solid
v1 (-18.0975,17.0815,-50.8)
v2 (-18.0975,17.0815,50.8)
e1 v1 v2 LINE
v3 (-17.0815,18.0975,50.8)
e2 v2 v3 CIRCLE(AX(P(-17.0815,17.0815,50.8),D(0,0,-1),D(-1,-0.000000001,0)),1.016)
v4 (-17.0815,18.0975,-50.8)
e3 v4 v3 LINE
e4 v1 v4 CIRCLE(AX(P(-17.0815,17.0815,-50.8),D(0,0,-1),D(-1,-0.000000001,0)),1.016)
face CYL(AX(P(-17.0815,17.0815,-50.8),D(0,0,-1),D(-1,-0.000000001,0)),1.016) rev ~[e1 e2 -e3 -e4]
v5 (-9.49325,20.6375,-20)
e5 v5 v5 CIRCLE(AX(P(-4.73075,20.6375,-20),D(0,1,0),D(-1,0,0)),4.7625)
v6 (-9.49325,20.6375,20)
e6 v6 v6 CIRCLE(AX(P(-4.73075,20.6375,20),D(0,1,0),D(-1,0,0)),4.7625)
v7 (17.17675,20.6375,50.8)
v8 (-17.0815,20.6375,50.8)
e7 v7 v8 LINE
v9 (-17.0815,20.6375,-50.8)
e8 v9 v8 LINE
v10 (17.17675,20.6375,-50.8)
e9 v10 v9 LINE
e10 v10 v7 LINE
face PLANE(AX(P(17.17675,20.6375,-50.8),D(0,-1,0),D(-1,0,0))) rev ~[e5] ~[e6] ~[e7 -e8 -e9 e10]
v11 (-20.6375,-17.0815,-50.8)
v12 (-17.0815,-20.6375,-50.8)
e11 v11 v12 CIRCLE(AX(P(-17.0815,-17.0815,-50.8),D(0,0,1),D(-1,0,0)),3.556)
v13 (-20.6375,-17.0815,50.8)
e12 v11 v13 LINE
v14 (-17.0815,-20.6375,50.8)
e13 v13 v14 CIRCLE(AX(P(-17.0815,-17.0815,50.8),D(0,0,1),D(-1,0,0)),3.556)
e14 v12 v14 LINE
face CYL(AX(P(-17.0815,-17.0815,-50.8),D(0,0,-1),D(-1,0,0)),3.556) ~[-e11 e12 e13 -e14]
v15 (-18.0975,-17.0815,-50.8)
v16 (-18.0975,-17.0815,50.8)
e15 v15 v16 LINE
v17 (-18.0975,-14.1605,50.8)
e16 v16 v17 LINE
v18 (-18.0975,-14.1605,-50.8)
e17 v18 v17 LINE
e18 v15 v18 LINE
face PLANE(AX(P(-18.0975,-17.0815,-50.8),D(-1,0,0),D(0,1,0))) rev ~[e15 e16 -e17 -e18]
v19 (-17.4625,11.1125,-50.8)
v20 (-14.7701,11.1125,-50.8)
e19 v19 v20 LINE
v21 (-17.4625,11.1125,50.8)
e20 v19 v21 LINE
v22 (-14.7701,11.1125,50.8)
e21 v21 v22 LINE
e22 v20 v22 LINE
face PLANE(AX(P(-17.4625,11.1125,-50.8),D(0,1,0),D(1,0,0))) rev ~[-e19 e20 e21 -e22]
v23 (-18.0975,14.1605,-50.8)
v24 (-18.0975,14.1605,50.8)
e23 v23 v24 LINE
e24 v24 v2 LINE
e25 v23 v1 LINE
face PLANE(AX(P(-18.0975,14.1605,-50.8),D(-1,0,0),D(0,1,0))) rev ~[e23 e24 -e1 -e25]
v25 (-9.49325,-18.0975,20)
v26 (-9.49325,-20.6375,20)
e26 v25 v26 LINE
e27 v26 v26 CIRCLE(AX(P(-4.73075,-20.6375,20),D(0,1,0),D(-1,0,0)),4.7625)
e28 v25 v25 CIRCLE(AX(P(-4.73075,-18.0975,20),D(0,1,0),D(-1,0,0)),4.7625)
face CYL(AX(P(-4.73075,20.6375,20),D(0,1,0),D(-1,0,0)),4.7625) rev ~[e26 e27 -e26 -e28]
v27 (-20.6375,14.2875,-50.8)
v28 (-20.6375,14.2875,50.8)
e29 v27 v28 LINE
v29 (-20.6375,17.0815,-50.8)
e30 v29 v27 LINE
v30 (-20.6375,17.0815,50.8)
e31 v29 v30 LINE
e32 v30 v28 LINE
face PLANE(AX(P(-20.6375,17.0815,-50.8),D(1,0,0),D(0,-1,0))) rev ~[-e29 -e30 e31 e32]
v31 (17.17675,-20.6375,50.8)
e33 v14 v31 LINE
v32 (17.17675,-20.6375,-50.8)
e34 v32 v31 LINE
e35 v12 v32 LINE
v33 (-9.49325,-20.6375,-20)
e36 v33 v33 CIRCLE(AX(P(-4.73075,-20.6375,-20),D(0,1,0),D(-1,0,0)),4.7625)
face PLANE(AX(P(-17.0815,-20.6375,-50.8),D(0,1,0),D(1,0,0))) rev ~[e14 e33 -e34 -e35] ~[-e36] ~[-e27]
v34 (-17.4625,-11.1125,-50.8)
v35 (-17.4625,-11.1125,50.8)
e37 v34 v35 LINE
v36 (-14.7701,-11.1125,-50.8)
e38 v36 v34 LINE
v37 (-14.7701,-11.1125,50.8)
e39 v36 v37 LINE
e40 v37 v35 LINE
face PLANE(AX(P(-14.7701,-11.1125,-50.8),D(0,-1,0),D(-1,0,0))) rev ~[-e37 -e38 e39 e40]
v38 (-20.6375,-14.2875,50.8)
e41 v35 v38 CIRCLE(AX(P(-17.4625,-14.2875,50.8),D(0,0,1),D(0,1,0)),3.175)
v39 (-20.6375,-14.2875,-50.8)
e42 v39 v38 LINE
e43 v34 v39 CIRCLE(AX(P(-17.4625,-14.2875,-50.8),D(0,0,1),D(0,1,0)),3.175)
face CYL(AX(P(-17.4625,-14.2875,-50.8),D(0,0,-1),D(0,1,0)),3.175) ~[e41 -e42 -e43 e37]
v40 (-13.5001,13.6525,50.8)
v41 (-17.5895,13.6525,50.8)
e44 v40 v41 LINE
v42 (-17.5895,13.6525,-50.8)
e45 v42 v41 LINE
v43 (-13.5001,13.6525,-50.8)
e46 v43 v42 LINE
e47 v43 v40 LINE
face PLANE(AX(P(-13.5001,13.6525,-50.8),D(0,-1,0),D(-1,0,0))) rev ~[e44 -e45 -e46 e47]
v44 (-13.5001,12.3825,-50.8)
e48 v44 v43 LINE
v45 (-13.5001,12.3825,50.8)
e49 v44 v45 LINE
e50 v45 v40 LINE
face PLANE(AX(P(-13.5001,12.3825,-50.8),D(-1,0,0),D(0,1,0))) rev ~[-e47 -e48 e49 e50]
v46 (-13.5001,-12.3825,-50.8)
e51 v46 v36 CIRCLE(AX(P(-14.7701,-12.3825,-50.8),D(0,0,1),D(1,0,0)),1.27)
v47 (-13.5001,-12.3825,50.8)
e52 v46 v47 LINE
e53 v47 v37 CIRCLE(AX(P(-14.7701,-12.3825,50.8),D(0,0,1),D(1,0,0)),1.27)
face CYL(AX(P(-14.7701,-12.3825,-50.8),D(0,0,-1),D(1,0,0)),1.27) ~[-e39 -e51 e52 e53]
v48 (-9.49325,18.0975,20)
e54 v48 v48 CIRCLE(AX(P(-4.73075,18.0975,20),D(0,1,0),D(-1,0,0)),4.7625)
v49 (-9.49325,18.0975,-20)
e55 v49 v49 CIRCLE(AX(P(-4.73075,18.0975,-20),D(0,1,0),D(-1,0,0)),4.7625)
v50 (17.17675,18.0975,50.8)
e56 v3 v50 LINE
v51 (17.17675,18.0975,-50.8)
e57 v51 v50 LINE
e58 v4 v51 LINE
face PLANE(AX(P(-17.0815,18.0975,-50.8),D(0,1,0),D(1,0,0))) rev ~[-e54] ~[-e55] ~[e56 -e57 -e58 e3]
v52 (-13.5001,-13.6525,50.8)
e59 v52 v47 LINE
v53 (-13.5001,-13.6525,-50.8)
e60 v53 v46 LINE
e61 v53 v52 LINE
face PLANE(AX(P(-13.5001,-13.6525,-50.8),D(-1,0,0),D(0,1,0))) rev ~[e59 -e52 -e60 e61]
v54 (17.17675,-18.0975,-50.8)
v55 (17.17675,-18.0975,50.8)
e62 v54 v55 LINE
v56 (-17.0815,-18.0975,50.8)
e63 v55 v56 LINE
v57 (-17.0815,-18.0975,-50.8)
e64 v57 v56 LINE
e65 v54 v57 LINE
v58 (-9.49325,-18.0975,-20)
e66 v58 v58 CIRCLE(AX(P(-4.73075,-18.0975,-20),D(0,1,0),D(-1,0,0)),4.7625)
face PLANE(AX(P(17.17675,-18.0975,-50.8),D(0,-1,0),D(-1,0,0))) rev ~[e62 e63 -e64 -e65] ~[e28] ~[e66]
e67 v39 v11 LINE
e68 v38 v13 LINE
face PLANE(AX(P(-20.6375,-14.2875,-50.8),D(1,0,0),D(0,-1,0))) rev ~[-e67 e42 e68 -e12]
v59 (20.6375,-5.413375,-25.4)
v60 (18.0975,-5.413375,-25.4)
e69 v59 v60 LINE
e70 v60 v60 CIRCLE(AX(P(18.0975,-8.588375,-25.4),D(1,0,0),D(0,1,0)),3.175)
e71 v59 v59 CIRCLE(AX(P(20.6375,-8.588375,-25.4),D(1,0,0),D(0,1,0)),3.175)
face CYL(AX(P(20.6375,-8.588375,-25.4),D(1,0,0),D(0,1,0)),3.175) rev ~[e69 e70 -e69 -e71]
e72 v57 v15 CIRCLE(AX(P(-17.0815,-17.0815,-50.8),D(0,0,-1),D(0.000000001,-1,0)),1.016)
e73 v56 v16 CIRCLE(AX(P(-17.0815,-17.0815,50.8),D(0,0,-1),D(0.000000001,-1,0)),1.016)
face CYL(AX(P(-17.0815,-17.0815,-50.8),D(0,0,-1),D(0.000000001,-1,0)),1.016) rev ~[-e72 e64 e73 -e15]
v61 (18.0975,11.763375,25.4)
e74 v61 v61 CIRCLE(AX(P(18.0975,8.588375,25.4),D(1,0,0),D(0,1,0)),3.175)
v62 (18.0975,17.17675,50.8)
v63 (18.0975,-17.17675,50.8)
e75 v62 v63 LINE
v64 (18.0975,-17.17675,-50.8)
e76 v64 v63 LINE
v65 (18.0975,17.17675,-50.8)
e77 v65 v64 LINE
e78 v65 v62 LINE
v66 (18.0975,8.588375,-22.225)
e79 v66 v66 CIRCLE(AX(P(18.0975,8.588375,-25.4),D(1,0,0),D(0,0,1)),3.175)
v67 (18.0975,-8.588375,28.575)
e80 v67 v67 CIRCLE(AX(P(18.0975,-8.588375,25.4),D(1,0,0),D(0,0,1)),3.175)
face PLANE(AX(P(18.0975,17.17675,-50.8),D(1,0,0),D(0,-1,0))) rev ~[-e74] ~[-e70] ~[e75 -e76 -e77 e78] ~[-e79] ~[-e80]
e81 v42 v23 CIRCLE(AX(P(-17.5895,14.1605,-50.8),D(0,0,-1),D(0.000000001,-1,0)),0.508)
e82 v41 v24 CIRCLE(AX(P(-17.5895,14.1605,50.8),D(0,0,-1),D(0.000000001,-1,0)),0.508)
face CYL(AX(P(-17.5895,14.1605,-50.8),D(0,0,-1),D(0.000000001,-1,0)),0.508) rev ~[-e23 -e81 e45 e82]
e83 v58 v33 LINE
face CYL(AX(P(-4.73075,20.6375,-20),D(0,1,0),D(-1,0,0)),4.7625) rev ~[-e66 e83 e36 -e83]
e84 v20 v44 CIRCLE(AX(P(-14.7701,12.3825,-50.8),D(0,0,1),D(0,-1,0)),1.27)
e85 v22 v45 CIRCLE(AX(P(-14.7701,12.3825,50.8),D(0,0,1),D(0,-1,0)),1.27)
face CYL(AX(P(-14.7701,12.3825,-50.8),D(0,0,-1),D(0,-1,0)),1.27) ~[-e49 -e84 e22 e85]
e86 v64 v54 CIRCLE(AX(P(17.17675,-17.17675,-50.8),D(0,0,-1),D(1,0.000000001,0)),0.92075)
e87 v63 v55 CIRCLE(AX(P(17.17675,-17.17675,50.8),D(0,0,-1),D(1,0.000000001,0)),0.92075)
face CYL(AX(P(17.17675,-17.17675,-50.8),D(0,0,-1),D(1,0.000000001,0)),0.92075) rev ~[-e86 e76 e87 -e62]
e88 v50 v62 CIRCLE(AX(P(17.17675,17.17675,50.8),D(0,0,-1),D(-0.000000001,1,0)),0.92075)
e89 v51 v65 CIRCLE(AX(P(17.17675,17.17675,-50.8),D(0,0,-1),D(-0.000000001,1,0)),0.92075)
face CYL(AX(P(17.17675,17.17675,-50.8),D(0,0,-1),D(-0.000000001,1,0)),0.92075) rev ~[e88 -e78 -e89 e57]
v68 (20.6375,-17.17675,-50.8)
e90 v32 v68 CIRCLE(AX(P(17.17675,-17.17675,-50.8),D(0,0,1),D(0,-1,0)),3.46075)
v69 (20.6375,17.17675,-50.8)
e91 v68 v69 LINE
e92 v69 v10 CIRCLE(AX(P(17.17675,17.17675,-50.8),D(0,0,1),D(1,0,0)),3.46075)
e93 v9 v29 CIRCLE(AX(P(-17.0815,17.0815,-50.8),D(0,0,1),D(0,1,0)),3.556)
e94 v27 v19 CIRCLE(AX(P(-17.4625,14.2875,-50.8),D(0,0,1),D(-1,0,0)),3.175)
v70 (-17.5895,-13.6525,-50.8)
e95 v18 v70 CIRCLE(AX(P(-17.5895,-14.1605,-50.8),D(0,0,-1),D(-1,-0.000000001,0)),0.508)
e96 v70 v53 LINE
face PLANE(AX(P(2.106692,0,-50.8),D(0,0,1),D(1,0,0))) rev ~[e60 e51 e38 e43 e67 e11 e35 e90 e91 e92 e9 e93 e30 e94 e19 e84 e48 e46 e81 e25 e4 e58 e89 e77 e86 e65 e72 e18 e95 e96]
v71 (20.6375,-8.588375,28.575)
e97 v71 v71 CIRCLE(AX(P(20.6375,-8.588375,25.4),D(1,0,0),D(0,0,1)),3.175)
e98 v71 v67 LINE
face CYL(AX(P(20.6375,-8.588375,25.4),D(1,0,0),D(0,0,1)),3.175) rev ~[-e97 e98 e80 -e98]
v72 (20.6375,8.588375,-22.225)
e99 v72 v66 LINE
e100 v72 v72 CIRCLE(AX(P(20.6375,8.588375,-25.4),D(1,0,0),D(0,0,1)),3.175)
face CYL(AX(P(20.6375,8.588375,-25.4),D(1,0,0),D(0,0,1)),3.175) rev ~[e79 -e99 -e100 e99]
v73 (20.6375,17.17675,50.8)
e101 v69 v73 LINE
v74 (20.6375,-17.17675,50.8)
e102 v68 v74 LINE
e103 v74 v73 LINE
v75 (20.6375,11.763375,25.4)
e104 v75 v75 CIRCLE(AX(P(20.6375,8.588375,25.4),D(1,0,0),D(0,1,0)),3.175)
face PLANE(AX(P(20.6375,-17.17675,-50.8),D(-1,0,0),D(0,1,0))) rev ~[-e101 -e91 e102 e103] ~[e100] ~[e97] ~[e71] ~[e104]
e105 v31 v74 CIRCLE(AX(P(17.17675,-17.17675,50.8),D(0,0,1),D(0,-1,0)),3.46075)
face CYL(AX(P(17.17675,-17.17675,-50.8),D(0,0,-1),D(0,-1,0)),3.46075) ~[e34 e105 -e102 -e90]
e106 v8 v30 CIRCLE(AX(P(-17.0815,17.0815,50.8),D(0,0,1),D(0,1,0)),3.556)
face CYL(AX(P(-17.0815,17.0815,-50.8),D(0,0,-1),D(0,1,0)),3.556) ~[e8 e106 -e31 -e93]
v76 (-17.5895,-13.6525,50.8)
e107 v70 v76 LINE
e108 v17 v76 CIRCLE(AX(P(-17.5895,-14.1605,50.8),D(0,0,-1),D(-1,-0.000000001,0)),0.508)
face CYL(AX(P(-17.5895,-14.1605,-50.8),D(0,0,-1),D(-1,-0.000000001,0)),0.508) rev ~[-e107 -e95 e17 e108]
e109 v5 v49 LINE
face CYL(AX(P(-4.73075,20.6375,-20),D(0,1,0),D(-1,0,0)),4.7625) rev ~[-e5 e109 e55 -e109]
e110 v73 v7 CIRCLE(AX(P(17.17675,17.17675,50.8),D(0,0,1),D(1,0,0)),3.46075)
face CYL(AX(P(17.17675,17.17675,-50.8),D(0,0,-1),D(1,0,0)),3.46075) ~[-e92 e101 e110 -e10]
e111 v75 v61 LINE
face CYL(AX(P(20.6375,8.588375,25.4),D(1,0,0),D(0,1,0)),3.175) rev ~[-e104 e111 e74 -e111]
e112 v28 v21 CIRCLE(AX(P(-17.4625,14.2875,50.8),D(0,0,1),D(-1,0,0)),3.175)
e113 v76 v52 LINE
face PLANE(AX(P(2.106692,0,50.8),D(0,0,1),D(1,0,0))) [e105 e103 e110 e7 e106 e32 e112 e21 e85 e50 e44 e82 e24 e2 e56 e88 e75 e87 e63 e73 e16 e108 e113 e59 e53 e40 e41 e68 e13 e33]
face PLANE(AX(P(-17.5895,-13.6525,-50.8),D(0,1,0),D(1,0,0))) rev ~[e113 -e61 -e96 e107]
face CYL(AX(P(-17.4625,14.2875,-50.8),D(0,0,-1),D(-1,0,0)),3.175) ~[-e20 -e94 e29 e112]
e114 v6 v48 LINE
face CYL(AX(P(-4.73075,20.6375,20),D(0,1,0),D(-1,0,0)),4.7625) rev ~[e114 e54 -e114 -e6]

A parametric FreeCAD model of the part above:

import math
import FreeCAD as App
import Part
import Sketcher

V = App.Vector
Q = App.Units.Quantity

doc = App.newDocument("Part")
body = doc.addObject("PartDesign::Body", "Body")

sketch1 = doc.addObject("Sketcher::SketchObject", "Sketch")
body.addObject(sketch1)
sketch1.AttachmentSupport = (doc.XY_Plane, [""])
sketch1.MapMode = "FlatFace"
sketch1.addGeometry(Part.LineSegment(V(-17.1, -20.6, 0), V(17.2, -20.6, 0)), False)
sketch1.addGeometry(Part.ArcOfCircle(Part.Circle(V(17.2, -17.2, 0), V(0, 0, 1), 3.5), math.radians(-90), math.radians(0)), False)
sketch1.addGeometry(Part.LineSegment(V(20.6, -17.2, 0), V(20.6, 17.2, 0)), False)
sketch1.addGeometry(Part.ArcOfCircle(Part.Circle(V(17.2, 17.2, 0), V(0, 0, 1), 3.5), math.radians(0), math.radians(90)), False)
sketch1.addGeometry(Part.LineSegment(V(17.2, 20.6, 0), V(-17.1, 20.6, 0)), False)
sketch1.addGeometry(Part.ArcOfCircle(Part.Circle(V(-17.1, 17.1, 0), V(0, 0, 1), 3.6), math.radians(90), math.radians(180)), False)
sketch1.addGeometry(Part.LineSegment(V(-20.6, 17.1, 0), V(-20.6, 14.3, 0)), False)
sketch1.addGeometry(Part.ArcOfCircle(Part.Circle(V(-17.5, 14.3, 0), V(0, 0, 1), 3.2), math.radians(-180), math.radians(-90)), False)
sketch1.addGeometry(Part.LineSegment(V(-17.5, 11.1, 0), V(-14.8, 11.1, 0)), False)
sketch1.addGeometry(Part.ArcOfCircle(Part.Circle(V(-14.8, 12.4, 0), V(0, 0, 1), 1.3), math.radians(-90), math.radians(0)), False)
sketch1.addGeometry(Part.LineSegment(V(-13.5, 12.4, 0), V(-13.5, 13.7, 0)), False)
sketch1.addGeometry(Part.LineSegment(V(-13.5, 13.7, 0), V(-17.6, 13.7, 0)), False)
sketch1.addGeometry(Part.ArcOfCircle(Part.Circle(V(-17.6, 14.2, 0), V(0, 0, 1), 0.5), math.radians(180), math.radians(270)), False)
sketch1.addGeometry(Part.LineSegment(V(-18.1, 14.2, 0), V(-18.1, 17.1, 0)), False)
sketch1.addGeometry(Part.ArcOfCircle(Part.Circle(V(-17.1, 17.1, 0), V(0, 0, 1), 1), math.radians(90), math.radians(180)), False)
sketch1.addGeometry(Part.LineSegment(V(-17.1, 18.1, 0), V(17.2, 18.1, 0)), False)
sketch1.addGeometry(Part.ArcOfCircle(Part.Circle(V(17.2, 17.2, 0), V(0, 0, 1), 0.9), math.radians(0), math.radians(90)), False)
sketch1.addGeometry(Part.LineSegment(V(18.1, 17.2, 0), V(18.1, -17.2, 0)), False)
sketch1.addGeometry(Part.ArcOfCircle(Part.Circle(V(17.2, -17.2, 0), V(0, 0, 1), 0.9), math.radians(-90), math.radians(0)), False)
sketch1.addGeometry(Part.LineSegment(V(17.2, -18.1, 0), V(-17.1, -18.1, 0)), False)
sketch1.addGeometry(Part.ArcOfCircle(Part.Circle(V(-17.1, -17.1, 0), V(0, 0, 1), 1), math.radians(180), math.radians(270)), False)
sketch1.addGeometry(Part.LineSegment(V(-18.1, -17.1, 0), V(-18.1, -14.2, 0)), False)
sketch1.addGeometry(Part.ArcOfCircle(Part.Circle(V(-17.6, -14.2, 0), V(0, 0, 1), 0.5), math.radians(90), math.radians(180)), False)
sketch1.addGeometry(Part.LineSegment(V(-17.6, -13.7, 0), V(-13.5, -13.7, 0)), False)
sketch1.addGeometry(Part.LineSegment(V(-13.5, -13.7, 0), V(-13.5, -12.4, 0)), False)
sketch1.addGeometry(Part.ArcOfCircle(Part.Circle(V(-14.8, -12.4, 0), V(0, 0, 1), 1.3), math.radians(0), math.radians(90)), False)
sketch1.addGeometry(Part.LineSegment(V(-14.8, -11.1, 0), V(-17.5, -11.1, 0)), False)
sketch1.addGeometry(Part.ArcOfCircle(Part.Circle(V(-17.5, -14.3, 0), V(0, 0, 1), 3.2), math.radians(90), math.radians(180)), False)
sketch1.addGeometry(Part.LineSegment(V(-20.6, -14.3, 0), V(-20.6, -17.1, 0)), False)
sketch1.addGeometry(Part.ArcOfCircle(Part.Circle(V(-17.1, -17.1, 0), V(0, 0, 1), 3.6), math.radians(180), math.radians(270)), False)
sketch1.addConstraint(Sketcher.Constraint("Tangent", 0, 2, 1, 1))
sketch1.addConstraint(Sketcher.Constraint("Tangent", 1, 2, 2, 1))
sketch1.addConstraint(Sketcher.Constraint("Tangent", 2, 2, 3, 1))
sketch1.addConstraint(Sketcher.Constraint("Tangent", 3, 2, 4, 1))
sketch1.addConstraint(Sketcher.Constraint("Tangent", 4, 2, 5, 1))
sketch1.addConstraint(Sketcher.Constraint("Tangent", 5, 2, 6, 1))
sketch1.addConstraint(Sketcher.Constraint("Tangent", 6, 2, 7, 1))
sketch1.addConstraint(Sketcher.Constraint("Tangent", 7, 2, 8, 1))
sketch1.addConstraint(Sketcher.Constraint("Tangent", 8, 2, 9, 1))
sketch1.addConstraint(Sketcher.Constraint("Tangent", 9, 2, 10, 1))
sketch1.addConstraint(Sketcher.Constraint("Coincident", 10, 2, 11, 1))
sketch1.addConstraint(Sketcher.Constraint("Tangent", 11, 2, 12, 2))
sketch1.addConstraint(Sketcher.Constraint("Tangent", 12, 1, 13, 1))
sketch1.addConstraint(Sketcher.Constraint("Tangent", 13, 2, 14, 2))
sketch1.addConstraint(Sketcher.Constraint("Tangent", 14, 1, 15, 1))
sketch1.addConstraint(Sketcher.Constraint("Tangent", 15, 2, 16, 2))
sketch1.addConstraint(Sketcher.Constraint("Tangent", 16, 1, 17, 1))
sketch1.addConstraint(Sketcher.Constraint("Tangent", 17, 2, 18, 2))
sketch1.addConstraint(Sketcher.Constraint("Tangent", 18, 1, 19, 1))
sketch1.addConstraint(Sketcher.Constraint("Tangent", 19, 2, 20, 2))
sketch1.addConstraint(Sketcher.Constraint("Tangent", 20, 1, 21, 1))
sketch1.addConstraint(Sketcher.Constraint("Tangent", 21, 2, 22, 2))
sketch1.addConstraint(Sketcher.Constraint("Tangent", 22, 1, 23, 1))
sketch1.addConstraint(Sketcher.Constraint("Coincident", 23, 2, 24, 1))
sketch1.addConstraint(Sketcher.Constraint("Tangent", 24, 2, 25, 1))
sketch1.addConstraint(Sketcher.Constraint("Tangent", 25, 2, 26, 1))
sketch1.addConstraint(Sketcher.Constraint("Tangent", 26, 2, 27, 1))
sketch1.addConstraint(Sketcher.Constraint("Tangent", 27, 2, 28, 1))
sketch1.addConstraint(Sketcher.Constraint("Tangent", 28, 2, 29, 1))
sketch1.addConstraint(Sketcher.Constraint("Tangent", 29, 2, 0, 1))
sketch1.addConstraint(Sketcher.Constraint("Horizontal", 0))
sketch1.addConstraint(Sketcher.Constraint("Vertical", 2))
sketch1.addConstraint(Sketcher.Constraint("Horizontal", 4))
sketch1.addConstraint(Sketcher.Constraint("Vertical", 6))
sketch1.addConstraint(Sketcher.Constraint("Horizontal", 8))
sketch1.addConstraint(Sketcher.Constraint("Vertical", 10))
sketch1.addConstraint(Sketcher.Constraint("Horizontal", 11))
sketch1.addConstraint(Sketcher.Constraint("Vertical", 13))
sketch1.addConstraint(Sketcher.Constraint("Horizontal", 15))
sketch1.addConstraint(Sketcher.Constraint("Vertical", 17))
sketch1.addConstraint(Sketcher.Constraint("Horizontal", 19))
sketch1.addConstraint(Sketcher.Constraint("Vertical", 21))
sketch1.addConstraint(Sketcher.Constraint("Horizontal", 23))
sketch1.addConstraint(Sketcher.Constraint("Vertical", 24))
sketch1.addConstraint(Sketcher.Constraint("Horizontal", 26))
sketch1.addConstraint(Sketcher.Constraint("Vertical", 28))
sketch1.addConstraint(Sketcher.Constraint("Coincident", 14, 3, 5, 3))
sketch1.addConstraint(Sketcher.Constraint("Coincident", 16, 3, 3, 3))
sketch1.addConstraint(Sketcher.Constraint("Coincident", 18, 3, 1, 3))
sketch1.addConstraint(Sketcher.Constraint("Coincident", 29, 3, 20, 3))
sketch1.addConstraint(Sketcher.Constraint("Equal", 1, 3))
sketch1.addConstraint(Sketcher.Constraint("Equal", 14, 20))
sketch1.addConstraint(Sketcher.Constraint("Equal", 12, 22))
sketch1.addConstraint(Sketcher.Constraint("Equal", 9, 25))
sketch1.addConstraint(Sketcher.Constraint("Equal", 7, 27))
sketch1.addConstraint(Sketcher.Constraint("Symmetric", 5, 3, 20, 3, -1))
sketch1.addConstraint(Sketcher.Constraint("Symmetric", 9, 3, 25, 3, -1))
sketch1.addConstraint(Sketcher.Constraint("Equal", 13, 21))
sketch1.addConstraint(Sketcher.Constraint("Radius", 5, Q("0.14 in")))
sketch1.addConstraint(Sketcher.Constraint("Radius", 9, Q("0.05 in")))
sketch1.addConstraint(Sketcher.Constraint("Radius", 12, Q("0.02 in")))
sketch1.addConstraint(Sketcher.Constraint("Radius", 14, Q("0.04 in")))
sketch1.addConstraint(Sketcher.Constraint("Radius", 7, Q("0.125 in")))
sketch1.addConstraint(Sketcher.Constraint("DistanceY", 6, 2, 6, 1, Q("0.11 in")))
sketch1.addConstraint(Sketcher.Constraint("DistanceY", 10, 1, 10, 2, Q("0.05 in")))
sketch1.addConstraint(Sketcher.Constraint("DistanceX", 8, 1, 8, 2, Q("0.106 in")))
sketch1.addConstraint(Sketcher.Constraint("DistanceY", 20, 3, 9, 3, Q("1.16 in")))
sketch1.addConstraint(Sketcher.Constraint("DistanceY", 2, 1, 2, 2, Q("1.3525 in")))
sketch1.addConstraint(Sketcher.Constraint("DistanceX", 7, 3, -1, 1, Q("0.6875 in")))
sketch1.addConstraint(Sketcher.Constraint("DistanceX", -1, 1, 1, 2, Q("0.8125 in")))
pad1 = doc.addObject("PartDesign::Pad", "Pad")
body.addObject(pad1)
pad1.Profile = sketch1
pad1.Type = "TwoLengths"
pad1.Length = Q("2 in")
pad1.Length2 = Q("2 in")

sketch2 = doc.addObject("Sketcher::SketchObject", "Sketch001")
body.addObject(sketch2)
sketch2.AttachmentSupport = (doc.XZ_Plane, [""])
sketch2.MapMode = "FlatFace"
sketch2.AttachmentOffset = App.Placement(V(0, 0, -0.8125 * 25.4), App.Rotation())
sketch2.addGeometry(Part.Circle(V(-4.7, 20, 0), V(0, 0, 1), 4.8), False)
sketch2.addGeometry(Part.Circle(V(-4.7, -20, 0), V(0, 0, 1), 4.8), False)
sketch2.addConstraint(Sketcher.Constraint("Equal", 0, 1))
sketch2.addConstraint(Sketcher.Constraint("Symmetric", 0, 3, 1, 3, -1))
sketch2.addConstraint(Sketcher.Constraint("Diameter", 0, Q("0.375 in")))
sketch2.addConstraint(Sketcher.Constraint("DistanceY", -1, 1, 0, 3, Q("20 mm")))
sketch2.addConstraint(Sketcher.Constraint("DistanceX", 0, 3, -1, 1, Q("4.73075 mm")))
pocket1 = doc.addObject("PartDesign::Pocket", "Pocket")
body.addObject(pocket1)
pocket1.Profile = sketch2
pocket1.Length = Q("1.8 in")
pocket1.Reversed = True

sketch3 = doc.addObject("Sketcher::SketchObject", "Sketch002")
body.addObject(sketch3)
sketch3.AttachmentSupport = (doc.YZ_Plane, [""])
sketch3.MapMode = "FlatFace"
sketch3.AttachmentOffset = App.Placement(V(0, 0, 0.8125 * 25.4), App.Rotation())
sketch3.addGeometry(Part.Circle(V(-8.6, -25.4, 0), V(0, 0, 1), 3.2), False)
sketch3.addGeometry(Part.Circle(V(8.6, -25.4, 0), V(0, 0, 1), 3.2), False)
sketch3.addGeometry(Part.Circle(V(-8.6, 25.4, 0), V(0, 0, 1), 3.2), False)
sketch3.addGeometry(Part.Circle(V(8.6, 25.4, 0), V(0, 0, 1), 3.2), False)
sketch3.addConstraint(Sketcher.Constraint("Equal", 0, 1))
sketch3.addConstraint(Sketcher.Constraint("Equal", 1, 2))
sketch3.addConstraint(Sketcher.Constraint("Equal", 2, 3))
sketch3.addConstraint(Sketcher.Constraint("Symmetric", 1, 3, 2, 3, -1, 1))
sketch3.addConstraint(Sketcher.Constraint("Symmetric", 0, 3, 3, 3, -1, 1))
sketch3.addConstraint(Sketcher.Constraint("Symmetric", 0, 3, 1, 3, -2))
sketch3.addConstraint(Sketcher.Constraint("Diameter", 0, Q("0.25 in")))
sketch3.addConstraint(Sketcher.Constraint("DistanceY", 0, 3, -1, 1, Q("1 in")))
sketch3.addConstraint(Sketcher.Constraint("DistanceX", 0, 3, 1, 3, Q("17.17675 mm")))
pocket2 = doc.addObject("PartDesign::Pocket", "Pocket001")
body.addObject(pocket2)
pocket2.Profile = sketch3
pocket2.Length = Q("0.1 in")

doc.recompute()
